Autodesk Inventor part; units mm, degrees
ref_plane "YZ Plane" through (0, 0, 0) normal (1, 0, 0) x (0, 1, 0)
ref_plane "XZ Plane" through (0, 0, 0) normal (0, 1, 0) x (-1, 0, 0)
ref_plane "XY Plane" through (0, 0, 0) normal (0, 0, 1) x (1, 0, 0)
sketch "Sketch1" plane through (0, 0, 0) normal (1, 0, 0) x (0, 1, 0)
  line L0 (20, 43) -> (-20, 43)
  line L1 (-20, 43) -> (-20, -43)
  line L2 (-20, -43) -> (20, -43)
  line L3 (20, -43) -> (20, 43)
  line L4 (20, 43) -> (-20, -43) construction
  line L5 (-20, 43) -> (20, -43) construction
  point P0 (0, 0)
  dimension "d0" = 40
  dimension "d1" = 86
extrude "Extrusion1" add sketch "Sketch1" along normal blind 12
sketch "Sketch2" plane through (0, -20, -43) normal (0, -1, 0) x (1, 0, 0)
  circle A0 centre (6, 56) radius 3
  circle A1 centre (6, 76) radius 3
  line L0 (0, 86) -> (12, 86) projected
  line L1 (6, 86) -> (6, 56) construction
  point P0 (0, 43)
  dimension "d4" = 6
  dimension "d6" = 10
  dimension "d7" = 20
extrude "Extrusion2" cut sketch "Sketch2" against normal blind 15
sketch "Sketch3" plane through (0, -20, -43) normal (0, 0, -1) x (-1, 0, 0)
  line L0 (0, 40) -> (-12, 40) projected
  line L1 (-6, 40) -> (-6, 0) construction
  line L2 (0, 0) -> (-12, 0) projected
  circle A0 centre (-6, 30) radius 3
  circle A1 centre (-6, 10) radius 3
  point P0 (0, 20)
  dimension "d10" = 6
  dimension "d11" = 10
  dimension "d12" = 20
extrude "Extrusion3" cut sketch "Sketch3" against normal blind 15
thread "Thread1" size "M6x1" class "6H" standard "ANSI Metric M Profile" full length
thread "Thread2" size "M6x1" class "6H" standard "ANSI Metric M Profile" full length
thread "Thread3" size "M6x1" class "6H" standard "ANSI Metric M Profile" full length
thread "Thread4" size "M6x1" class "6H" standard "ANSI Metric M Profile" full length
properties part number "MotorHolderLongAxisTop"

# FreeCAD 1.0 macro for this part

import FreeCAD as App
import Part
import Sketcher
Q = App.Units.Quantity

doc = App.newDocument("Part")
params = doc.addObject("Spreadsheet::Sheet", "Params")
for row, (alias, value) in enumerate([
    ("sketch1_width", "40 mm"),
    ("sketch1_height", "86 mm"),
    ("pad1_length", "12 mm"),
    ("sketch2_diameter", "6 mm"),
    ("pocket1_length", "15 mm"),
    ("sketch3_diameter", "6 mm"),
    ("pocket2_length", "15 mm"),
], start=1):
    params.set(f"A{row}", alias)
    params.set(f"B{row}", "=" + value)
    params.setAlias(f"B{row}", alias)

body = doc.addObject("PartDesign::Body", "Body")

sketch1 = body.newObject("Sketcher::SketchObject", "Sketch")
sketch1.AttachmentSupport = (doc.getObject("YZ_Plane"), [""])
sketch1.MapMode = "FlatFace"
sketch1.addGeometry([
    Part.LineSegment(App.Vector(20, -43, 0), App.Vector(20, 43, 0)),
    Part.LineSegment(App.Vector(20, 43, 0), App.Vector(-20, 43, 0)),
    Part.LineSegment(App.Vector(-20, 43, 0), App.Vector(-20, -43, 0)),
    Part.LineSegment(App.Vector(-20, -43, 0), App.Vector(20, -43, 0)),
], False)
sketch1.addConstraint([
    Sketcher.Constraint("Coincident", 0, 2, 1, 1),
    Sketcher.Constraint("Coincident", 1, 2, 2, 1),
    Sketcher.Constraint("Coincident", 2, 2, 3, 1),
    Sketcher.Constraint("Coincident", 3, 2, 0, 1),
    Sketcher.Constraint("Vertical", 0),
    Sketcher.Constraint("Horizontal", 1),
    Sketcher.Constraint("Vertical", 2),
    Sketcher.Constraint("Horizontal", 3),
    Sketcher.Constraint("Symmetric", 0, 2, 2, 2, -1, 1),
    Sketcher.Constraint("DistanceX", 1, 2, 1, 1, Q("40 mm")),
    Sketcher.Constraint("DistanceY", 0, 1, 0, 2, Q("86 mm")),
])
sketch1.setExpression("Constraints[9]", "Params.sketch1_width")
sketch1.setExpression("Constraints[10]", "Params.sketch1_height")
pad1 = body.newObject("PartDesign::Pad", "Pad")
pad1.Profile = sketch1
pad1.setExpression("Length", "Params.pad1_length")

sketch2 = body.newObject("Sketcher::SketchObject", "Sketch001")
sketch2.AttachmentSupport = (doc.getObject("XZ_Plane"), [""])
sketch2.MapMode = "FlatFace"
sketch2.AttachmentOffset = App.Placement(App.Vector(0, 0, 20), App.Rotation())
sketch2.addGeometry([
    Part.Circle(App.Vector(6, 13, 0), App.Vector(0, 0, 1), 3),
    Part.Circle(App.Vector(6, 33, 0), App.Vector(0, 0, 1), 3),
], False)
sketch2.addConstraint([
    Sketcher.Constraint("Equal", 0, 1),
    Sketcher.Constraint("Vertical", 0, 3, 1, 3),
    Sketcher.Constraint("Diameter", 0, Q("6 mm")),
    Sketcher.Constraint("DistanceX", -1, 1, 0, 3, Q("6 mm")),
    Sketcher.Constraint("DistanceY", 0, 3, 1, 3, Q("20 mm")),
    Sketcher.Constraint("DistanceY", -1, 1, 0, 3, Q("13 mm")),
])
sketch2.setExpression("Constraints[2]", "Params.sketch2_diameter")
pocket1 = body.newObject("PartDesign::Pocket", "Pocket")
pocket1.Profile = sketch2
pocket1.setExpression("Length", "Params.pocket1_length")

sketch3 = body.newObject("Sketcher::SketchObject", "Sketch002")
sketch3.AttachmentSupport = (doc.getObject("XY_Plane"), [""])
sketch3.MapMode = "FlatFace"
sketch3.AttachmentOffset = App.Placement(App.Vector(0, 0, -43), App.Rotation())
sketch3.addGeometry([
    Part.Circle(App.Vector(6, 10, 0), App.Vector(0, 0, 1), 3),
    Part.Circle(App.Vector(6, -10, 0), App.Vector(0, 0, 1), 3),
], False)
sketch3.addConstraint([
    Sketcher.Constraint("Equal", 0, 1),
    Sketcher.Constraint("Symmetric", 0, 3, 1, 3, -1),
    Sketcher.Constraint("Diameter", 0, Q("6 mm")),
    Sketcher.Constraint("DistanceX", -1, 1, 0, 3, Q("6 mm")),
    Sketcher.Constraint("DistanceY", -1, 1, 0, 3, Q("10 mm")),
])
sketch3.setExpression("Constraints[2]", "Params.sketch3_diameter")
pocket2 = body.newObject("PartDesign::Pocket", "Pocket001")
pocket2.Profile = sketch3
pocket2.setExpression("Length", "Params.pocket2_length")
pocket2.Reversed = True

doc.recompute()
